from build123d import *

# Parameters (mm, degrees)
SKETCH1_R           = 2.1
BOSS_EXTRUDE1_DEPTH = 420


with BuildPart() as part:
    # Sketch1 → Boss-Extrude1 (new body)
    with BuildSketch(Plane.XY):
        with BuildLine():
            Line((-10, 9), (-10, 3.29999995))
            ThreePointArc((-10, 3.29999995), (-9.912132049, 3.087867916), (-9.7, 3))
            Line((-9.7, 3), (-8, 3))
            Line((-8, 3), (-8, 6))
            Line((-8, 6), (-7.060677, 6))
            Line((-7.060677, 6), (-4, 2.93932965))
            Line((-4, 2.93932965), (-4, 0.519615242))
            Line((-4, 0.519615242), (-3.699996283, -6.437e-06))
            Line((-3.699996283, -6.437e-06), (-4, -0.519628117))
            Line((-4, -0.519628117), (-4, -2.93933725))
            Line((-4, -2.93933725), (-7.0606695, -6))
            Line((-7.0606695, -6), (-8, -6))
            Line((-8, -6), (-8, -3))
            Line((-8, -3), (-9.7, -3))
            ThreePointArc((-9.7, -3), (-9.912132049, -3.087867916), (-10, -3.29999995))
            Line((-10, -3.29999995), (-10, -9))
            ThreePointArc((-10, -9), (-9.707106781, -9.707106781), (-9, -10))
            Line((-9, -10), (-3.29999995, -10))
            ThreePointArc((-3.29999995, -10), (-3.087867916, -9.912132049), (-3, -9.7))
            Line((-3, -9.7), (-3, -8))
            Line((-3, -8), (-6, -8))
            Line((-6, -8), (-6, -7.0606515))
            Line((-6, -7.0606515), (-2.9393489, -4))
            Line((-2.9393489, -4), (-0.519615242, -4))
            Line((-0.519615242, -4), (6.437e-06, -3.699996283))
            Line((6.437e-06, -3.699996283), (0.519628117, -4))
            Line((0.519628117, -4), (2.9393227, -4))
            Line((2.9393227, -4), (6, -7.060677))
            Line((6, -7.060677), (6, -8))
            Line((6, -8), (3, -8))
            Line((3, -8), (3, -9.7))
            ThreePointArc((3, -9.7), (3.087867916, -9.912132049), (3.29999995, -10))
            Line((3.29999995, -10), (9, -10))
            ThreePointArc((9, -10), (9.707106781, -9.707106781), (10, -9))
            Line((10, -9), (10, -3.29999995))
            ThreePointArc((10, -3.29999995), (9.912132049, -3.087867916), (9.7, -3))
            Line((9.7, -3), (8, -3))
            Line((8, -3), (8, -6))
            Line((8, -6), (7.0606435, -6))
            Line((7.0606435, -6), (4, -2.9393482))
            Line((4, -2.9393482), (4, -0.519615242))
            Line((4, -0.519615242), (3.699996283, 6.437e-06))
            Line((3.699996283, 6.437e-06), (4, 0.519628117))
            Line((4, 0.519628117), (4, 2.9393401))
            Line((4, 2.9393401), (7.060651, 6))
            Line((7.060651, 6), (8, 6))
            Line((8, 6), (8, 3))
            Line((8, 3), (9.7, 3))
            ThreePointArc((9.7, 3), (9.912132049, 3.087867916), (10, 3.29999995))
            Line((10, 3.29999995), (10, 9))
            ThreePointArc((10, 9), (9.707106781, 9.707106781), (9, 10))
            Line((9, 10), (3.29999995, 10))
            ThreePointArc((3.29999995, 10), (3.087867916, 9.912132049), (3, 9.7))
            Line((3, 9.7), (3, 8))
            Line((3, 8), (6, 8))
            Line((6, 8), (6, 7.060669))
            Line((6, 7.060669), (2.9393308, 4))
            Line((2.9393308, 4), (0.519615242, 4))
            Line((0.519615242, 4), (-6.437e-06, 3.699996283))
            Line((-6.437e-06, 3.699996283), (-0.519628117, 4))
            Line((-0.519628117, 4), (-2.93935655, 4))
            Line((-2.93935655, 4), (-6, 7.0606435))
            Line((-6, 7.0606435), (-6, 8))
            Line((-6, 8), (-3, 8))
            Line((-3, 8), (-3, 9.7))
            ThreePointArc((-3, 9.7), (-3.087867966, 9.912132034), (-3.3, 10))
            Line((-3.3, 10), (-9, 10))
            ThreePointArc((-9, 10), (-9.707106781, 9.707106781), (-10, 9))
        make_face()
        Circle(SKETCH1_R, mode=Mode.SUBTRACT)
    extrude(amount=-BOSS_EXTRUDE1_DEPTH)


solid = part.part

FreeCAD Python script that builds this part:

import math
import FreeCAD as App
import Part
import Sketcher
from FreeCAD import Vector
Q = App.Units.Quantity

doc = App.newDocument("Part")
body = doc.addObject("PartDesign::Body", "Body")

sketch1 = body.newObject("Sketcher::SketchObject", "Sketch")
sketch1.AttachmentSupport = (doc.getObject("XY_Plane"), [""])
sketch1.MapMode = "FlatFace"
sketch1.addGeometry(Part.LineSegment(Vector(-10, 9, 0), Vector(-10, 3.3, 0)), False)
sketch1.addGeometry(Part.ArcOfCircle(Part.Circle(Vector(-9.7, 3.3, 0), Vector(0, 0, 1), 0.3), math.radians(179.999989), math.radians(270.000021)), False)
sketch1.addGeometry(Part.LineSegment(Vector(-9.7, 3, 0), Vector(-8, 3, 0)), False)
sketch1.addGeometry(Part.LineSegment(Vector(-8, 3, 0), Vector(-8, 6, 0)), False)
sketch1.addGeometry(Part.LineSegment(Vector(-8, 6, 0), Vector(-7.060677, 6, 0)), False)
sketch1.addGeometry(Part.LineSegment(Vector(-7.060677, 6, 0), Vector(-4, 2.93933, 0)), False)
sketch1.addGeometry(Part.LineSegment(Vector(-4, 2.93933, 0), Vector(-4, 0.519615, 0)), False)
sketch1.addGeometry(Part.LineSegment(Vector(-4, 0.519615, 0), Vector(-3.699996, -0.000006, 0)), False)
sketch1.addGeometry(Part.LineSegment(Vector(-3.699996, -0.000006, 0), Vector(-4, -0.519628, 0)), False)
sketch1.addGeometry(Part.LineSegment(Vector(-4, -0.519628, 0), Vector(-4, -2.939337, 0)), False)
sketch1.addGeometry(Part.LineSegment(Vector(-4, -2.939337, 0), Vector(-7.06067, -6, 0)), False)
sketch1.addGeometry(Part.LineSegment(Vector(-7.06067, -6, 0), Vector(-8, -6, 0)), False)
sketch1.addGeometry(Part.LineSegment(Vector(-8, -6, 0), Vector(-8, -3, 0)), False)
sketch1.addGeometry(Part.LineSegment(Vector(-8, -3, 0), Vector(-9.7, -3, 0)), False)
sketch1.addGeometry(Part.ArcOfCircle(Part.Circle(Vector(-9.7, -3.3, 0), Vector(0, 0, 1), 0.3), math.radians(89.999979), math.radians(180.000011)), False)
sketch1.addGeometry(Part.LineSegment(Vector(-10, -3.3, 0), Vector(-10, -9, 0)), False)
sketch1.addGeometry(Part.ArcOfCircle(Part.Circle(Vector(-9, -9, 0), Vector(0, 0, 1), 1), math.radians(-180), math.radians(-90)), False)
sketch1.addGeometry(Part.LineSegment(Vector(-9, -10, 0), Vector(-3.3, -10, 0)), False)
sketch1.addGeometry(Part.ArcOfCircle(Part.Circle(Vector(-3.3, -9.7, 0), Vector(0, 0, 1), 0.3), math.radians(-90.000011), math.radians(0.000021)), False)
sketch1.addGeometry(Part.LineSegment(Vector(-3, -9.7, 0), Vector(-3, -8, 0)), False)
sketch1.addGeometry(Part.LineSegment(Vector(-3, -8, 0), Vector(-6, -8, 0)), False)
sketch1.addGeometry(Part.LineSegment(Vector(-6, -8, 0), Vector(-6, -7.060651, 0)), False)
sketch1.addGeometry(Part.LineSegment(Vector(-6, -7.060651, 0), Vector(-2.939349, -4, 0)), False)
sketch1.addGeometry(Part.LineSegment(Vector(-2.939349, -4, 0), Vector(-0.519615, -4, 0)), False)
sketch1.addGeometry(Part.LineSegment(Vector(-0.519615, -4, 0), Vector(0.000006, -3.699996, 0)), False)
sketch1.addGeometry(Part.LineSegment(Vector(0.000006, -3.699996, 0), Vector(0.519628, -4, 0)), False)
sketch1.addGeometry(Part.LineSegment(Vector(0.519628, -4, 0), Vector(2.939323, -4, 0)), False)
sketch1.addGeometry(Part.LineSegment(Vector(2.939323, -4, 0), Vector(6, -7.060677, 0)), False)
sketch1.addGeometry(Part.LineSegment(Vector(6, -7.060677, 0), Vector(6, -8, 0)), False)
sketch1.addGeometry(Part.LineSegment(Vector(6, -8, 0), Vector(3, -8, 0)), False)
sketch1.addGeometry(Part.LineSegment(Vector(3, -8, 0), Vector(3, -9.7, 0)), False)
sketch1.addGeometry(Part.ArcOfCircle(Part.Circle(Vector(3.3, -9.7, 0), Vector(0, 0, 1), 0.3), math.radians(179.999979), math.radians(270.000011)), False)
sketch1.addGeometry(Part.LineSegment(Vector(3.3, -10, 0), Vector(9, -10, 0)), False)
sketch1.addGeometry(Part.ArcOfCircle(Part.Circle(Vector(9, -9, 0), Vector(0, 0, 1), 1), math.radians(-90), math.radians(0)), False)
sketch1.addGeometry(Part.LineSegment(Vector(10, -9, 0), Vector(10, -3.3, 0)), False)
sketch1.addGeometry(Part.ArcOfCircle(Part.Circle(Vector(9.7, -3.3, 0), Vector(0, 0, 1), 0.3), math.radians(-0.000011), math.radians(90.000021)), False)
sketch1.addGeometry(Part.LineSegment(Vector(9.7, -3, 0), Vector(8, -3, 0)), False)
sketch1.addGeometry(Part.LineSegment(Vector(8, -3, 0), Vector(8, -6, 0)), False)
sketch1.addGeometry(Part.LineSegment(Vector(8, -6, 0), Vector(7.060644, -6, 0)), False)
sketch1.addGeometry(Part.LineSegment(Vector(7.060644, -6, 0), Vector(4, -2.939348, 0)), False)
sketch1.addGeometry(Part.LineSegment(Vector(4, -2.939348, 0), Vector(4, -0.519615, 0)), False)
sketch1.addGeometry(Part.LineSegment(Vector(4, -0.519615, 0), Vector(3.699996, 0.000006, 0)), False)
sketch1.addGeometry(Part.LineSegment(Vector(3.699996, 0.000006, 0), Vector(4, 0.519628, 0)), False)
sketch1.addGeometry(Part.LineSegment(Vector(4, 0.519628, 0), Vector(4, 2.93934, 0)), False)
sketch1.addGeometry(Part.LineSegment(Vector(4, 2.93934, 0), Vector(7.060651, 6, 0)), False)
sketch1.addGeometry(Part.LineSegment(Vector(7.060651, 6, 0), Vector(8, 6, 0)), False)
sketch1.addGeometry(Part.LineSegment(Vector(8, 6, 0), Vector(8, 3, 0)), False)
sketch1.addGeometry(Part.LineSegment(Vector(8, 3, 0), Vector(9.7, 3, 0)), False)
sketch1.addGeometry(Part.ArcOfCircle(Part.Circle(Vector(9.7, 3.3, 0), Vector(0, 0, 1), 0.3), math.radians(-90.000021), math.radians(0.000011)), False)
sketch1.addGeometry(Part.LineSegment(Vector(10, 3.3, 0), Vector(10, 9, 0)), False)
sketch1.addGeometry(Part.ArcOfCircle(Part.Circle(Vector(9, 9, 0), Vector(0, 0, 1), 1), math.radians(0), math.radians(90)), False)
sketch1.addGeometry(Part.LineSegment(Vector(9, 10, 0), Vector(3.3, 10, 0)), False)
sketch1.addGeometry(Part.ArcOfCircle(Part.Circle(Vector(3.3, 9.7, 0), Vector(0, 0, 1), 0.3), math.radians(89.999989), math.radians(180.000021)), False)
sketch1.addGeometry(Part.LineSegment(Vector(3, 9.7, 0), Vector(3, 8, 0)), False)
sketch1.addGeometry(Part.LineSegment(Vector(3, 8, 0), Vector(6, 8, 0)), False)
sketch1.addGeometry(Part.LineSegment(Vector(6, 8, 0), Vector(6, 7.060669, 0)), False)
sketch1.addGeometry(Part.LineSegment(Vector(6, 7.060669, 0), Vector(2.939331, 4, 0)), False)
sketch1.addGeometry(Part.LineSegment(Vector(2.939331, 4, 0), Vector(0.519615, 4, 0)), False)
sketch1.addGeometry(Part.LineSegment(Vector(0.519615, 4, 0), Vector(-0.000006, 3.699996, 0)), False)
sketch1.addGeometry(Part.LineSegment(Vector(-0.000006, 3.699996, 0), Vector(-0.519628, 4, 0)), False)
sketch1.addGeometry(Part.LineSegment(Vector(-0.519628, 4, 0), Vector(-2.939357, 4, 0)), False)
sketch1.addGeometry(Part.LineSegment(Vector(-2.939357, 4, 0), Vector(-6, 7.060644, 0)), False)
sketch1.addGeometry(Part.LineSegment(Vector(-6, 7.060644, 0), Vector(-6, 8, 0)), False)
sketch1.addGeometry(Part.LineSegment(Vector(-6, 8, 0), Vector(-3, 8, 0)), False)
sketch1.addGeometry(Part.LineSegment(Vector(-3, 8, 0), Vector(-3, 9.7, 0)), False)
sketch1.addGeometry(Part.ArcOfCircle(Part.Circle(Vector(-3.3, 9.7, 0), Vector(0, 0, 1), 0.3), math.radians(0), math.radians(90)), False)
sketch1.addGeometry(Part.LineSegment(Vector(-3.3, 10, 0), Vector(-9, 10, 0)), False)
sketch1.addGeometry(Part.ArcOfCircle(Part.Circle(Vector(-9, 9, 0), Vector(0, 0, 1), 1), math.radians(90), math.radians(180)), False)
sketch1.addGeometry(Part.Circle(Vector(0, 0, 0), Vector(0, 0, 1), 2.1), False)
sketch1.addConstraint(Sketcher.Constraint("Tangent", 0, 2, 1, 1))
sketch1.addConstraint(Sketcher.Constraint("Tangent", 1, 2, 2, 1))
sketch1.addConstraint(Sketcher.Constraint("Coincident", 2, 2, 3, 1))
sketch1.addConstraint(Sketcher.Constraint("Coincident", 3, 2, 4, 1))
sketch1.addConstraint(Sketcher.Constraint("Coincident", 4, 2, 5, 1))
sketch1.addConstraint(Sketcher.Constraint("Coincident", 5, 2, 6, 1))
sketch1.addConstraint(Sketcher.Constraint("Coincident", 6, 2, 7, 1))
sketch1.addConstraint(Sketcher.Constraint("Coincident", 7, 2, 8, 1))
sketch1.addConstraint(Sketcher.Constraint("Coincident", 8, 2, 9, 1))
sketch1.addConstraint(Sketcher.Constraint("Coincident", 9, 2, 10, 1))
sketch1.addConstraint(Sketcher.Constraint("Coincident", 10, 2, 11, 1))
sketch1.addConstraint(Sketcher.Constraint("Coincident", 11, 2, 12, 1))
sketch1.addConstraint(Sketcher.Constraint("Coincident", 12, 2, 13, 1))
sketch1.addConstraint(Sketcher.Constraint("Tangent", 13, 2, 14, 1))
sketch1.addConstraint(Sketcher.Constraint("Tangent", 14, 2, 15, 1))
sketch1.addConstraint(Sketcher.Constraint("Tangent", 15, 2, 16, 1))
sketch1.addConstraint(Sketcher.Constraint("Tangent", 16, 2, 17, 1))
sketch1.addConstraint(Sketcher.Constraint("Tangent", 17, 2, 18, 1))
sketch1.addConstraint(Sketcher.Constraint("Tangent", 18, 2, 19, 1))
sketch1.addConstraint(Sketcher.Constraint("Coincident", 19, 2, 20, 1))
sketch1.addConstraint(Sketcher.Constraint("Coincident", 20, 2, 21, 1))
sketch1.addConstraint(Sketcher.Constraint("Coincident", 21, 2, 22, 1))
sketch1.addConstraint(Sketcher.Constraint("Coincident", 22, 2, 23, 1))
sketch1.addConstraint(Sketcher.Constraint("Coincident", 23, 2, 24, 1))
sketch1.addConstraint(Sketcher.Constraint("Coincident", 24, 2, 25, 1))
sketch1.addConstraint(Sketcher.Constraint("Coincident", 25, 2, 26, 1))
sketch1.addConstraint(Sketcher.Constraint("Coincident", 26, 2, 27, 1))
sketch1.addConstraint(Sketcher.Constraint("Coincident", 27, 2, 28, 1))
sketch1.addConstraint(Sketcher.Constraint("Coincident", 28, 2, 29, 1))
sketch1.addConstraint(Sketcher.Constraint("Coincident", 29, 2, 30, 1))
sketch1.addConstraint(Sketcher.Constraint("Tangent", 30, 2, 31, 1))
sketch1.addConstraint(Sketcher.Constraint("Tangent", 31, 2, 32, 1))
sketch1.addConstraint(Sketcher.Constraint("Tangent", 32, 2, 33, 1))
sketch1.addConstraint(Sketcher.Constraint("Tangent", 33, 2, 34, 1))
sketch1.addConstraint(Sketcher.Constraint("Tangent", 34, 2, 35, 1))
sketch1.addConstraint(Sketcher.Constraint("Tangent", 35, 2, 36, 1))
sketch1.addConstraint(Sketcher.Constraint("Coincident", 36, 2, 37, 1))
sketch1.addConstraint(Sketcher.Constraint("Coincident", 37, 2, 38, 1))
sketch1.addConstraint(Sketcher.Constraint("Coincident", 38, 2, 39, 1))
sketch1.addConstraint(Sketcher.Constraint("Coincident", 39, 2, 40, 1))
sketch1.addConstraint(Sketcher.Constraint("Coincident", 40, 2, 41, 1))
sketch1.addConstraint(Sketcher.Constraint("Coincident", 41, 2, 42, 1))
sketch1.addConstraint(Sketcher.Constraint("Coincident", 42, 2, 43, 1))
sketch1.addConstraint(Sketcher.Constraint("Coincident", 43, 2, 44, 1))
sketch1.addConstraint(Sketcher.Constraint("Coincident", 44, 2, 45, 1))
sketch1.addConstraint(Sketcher.Constraint("Coincident", 45, 2, 46, 1))
sketch1.addConstraint(Sketcher.Constraint("Coincident", 46, 2, 47, 1))
sketch1.addConstraint(Sketcher.Constraint("Tangent", 47, 2, 48, 1))
sketch1.addConstraint(Sketcher.Constraint("Tangent", 48, 2, 49, 1))
sketch1.addConstraint(Sketcher.Constraint("Tangent", 49, 2, 50, 1))
sketch1.addConstraint(Sketcher.Constraint("Tangent", 50, 2, 51, 1))
sketch1.addConstraint(Sketcher.Constraint("Tangent", 51, 2, 52, 1))
sketch1.addConstraint(Sketcher.Constraint("Tangent", 52, 2, 53, 1))
sketch1.addConstraint(Sketcher.Constraint("Coincident", 53, 2, 54, 1))
sketch1.addConstraint(Sketcher.Constraint("Coincident", 54, 2, 55, 1))
sketch1.addConstraint(Sketcher.Constraint("Coincident", 55, 2, 56, 1))
sketch1.addConstraint(Sketcher.Constraint("Coincident", 56, 2, 57, 1))
sketch1.addConstraint(Sketcher.Constraint("Coincident", 57, 2, 58, 1))
sketch1.addConstraint(Sketcher.Constraint("Coincident", 58, 2, 59, 1))
sketch1.addConstraint(Sketcher.Constraint("Coincident", 59, 2, 60, 1))
sketch1.addConstraint(Sketcher.Constraint("Coincident", 60, 2, 61, 1))
sketch1.addConstraint(Sketcher.Constraint("Coincident", 61, 2, 62, 1))
sketch1.addConstraint(Sketcher.Constraint("Coincident", 62, 2, 63, 1))
sketch1.addConstraint(Sketcher.Constraint("Coincident", 63, 2, 64, 1))
sketch1.addConstraint(Sketcher.Constraint("Tangent", 64, 2, 65, 1))
sketch1.addConstraint(Sketcher.Constraint("Tangent", 65, 2, 66, 1))
sketch1.addConstraint(Sketcher.Constraint("Tangent", 66, 2, 67, 1))
sketch1.addConstraint(Sketcher.Constraint("Tangent", 67, 2, 0, 1))
sketch1.addConstraint(Sketcher.Constraint("Vertical", 0))
sketch1.addConstraint(Sketcher.Constraint("Horizontal", 2))
sketch1.addConstraint(Sketcher.Constraint("Vertical", 3))
sketch1.addConstraint(Sketcher.Constraint("Horizontal", 4))
sketch1.addConstraint(Sketcher.Constraint("Vertical", 6))
sketch1.addConstraint(Sketcher.Constraint("Vertical", 9))
sketch1.addConstraint(Sketcher.Constraint("Horizontal", 11))
sketch1.addConstraint(Sketcher.Constraint("Vertical", 12))
sketch1.addConstraint(Sketcher.Constraint("Horizontal", 13))
sketch1.addConstraint(Sketcher.Constraint("Vertical", 15))
sketch1.addConstraint(Sketcher.Constraint("Horizontal", 17))
sketch1.addConstraint(Sketcher.Constraint("Vertical", 19))
sketch1.addConstraint(Sketcher.Constraint("Horizontal", 20))
sketch1.addConstraint(Sketcher.Constraint("Vertical", 21))
sketch1.addConstraint(Sketcher.Constraint("Horizontal", 23))
sketch1.addConstraint(Sketcher.Constraint("Horizontal", 26))
sketch1.addConstraint(Sketcher.Constraint("Vertical", 28))
sketch1.addConstraint(Sketcher.Constraint("Horizontal", 29))
sketch1.addConstraint(Sketcher.Constraint("Vertical", 30))
sketch1.addConstraint(Sketcher.Constraint("Horizontal", 32))
sketch1.addConstraint(Sketcher.Constraint("Vertical", 34))
sketch1.addConstraint(Sketcher.Constraint("Horizontal", 36))
sketch1.addConstraint(Sketcher.Constraint("Vertical", 37))
sketch1.addConstraint(Sketcher.Constraint("Horizontal", 38))
sketch1.addConstraint(Sketcher.Constraint("Vertical", 40))
sketch1.addConstraint(Sketcher.Constraint("Vertical", 43))
sketch1.addConstraint(Sketcher.Constraint("Horizontal", 45))
sketch1.addConstraint(Sketcher.Constraint("Vertical", 46))
sketch1.addConstraint(Sketcher.Constraint("Horizontal", 47))
sketch1.addConstraint(Sketcher.Constraint("Vertical", 49))
sketch1.addConstraint(Sketcher.Constraint("Horizontal", 51))
sketch1.addConstraint(Sketcher.Constraint("Vertical", 53))
sketch1.addConstraint(Sketcher.Constraint("Horizontal", 54))
sketch1.addConstraint(Sketcher.Constraint("Vertical", 55))
sketch1.addConstraint(Sketcher.Constraint("Horizontal", 57))
sketch1.addConstraint(Sketcher.Constraint("Horizontal", 60))
sketch1.addConstraint(Sketcher.Constraint("Vertical", 62))
sketch1.addConstraint(Sketcher.Constraint("Horizontal", 63))
sketch1.addConstraint(Sketcher.Constraint("Vertical", 64))
sketch1.addConstraint(Sketcher.Constraint("Horizontal", 66))
sketch1.addConstraint(Sketcher.Constraint("Coincident", 68, 3, -1, 1))
sketch1.addConstraint(Sketcher.Constraint("Equal", 1, 14))
sketch1.addConstraint(Sketcher.Constraint("Equal", 14, 18))
sketch1.addConstraint(Sketcher.Constraint("Equal", 18, 31))
sketch1.addConstraint(Sketcher.Constraint("Equal", 16, 33))
sketch1.addConstraint(Sketcher.Constraint("Equal", 31, 35))
sketch1.addConstraint(Sketcher.Constraint("Equal", 35, 48))
sketch1.addConstraint(Sketcher.Constraint("Equal", 33, 50))
sketch1.addConstraint(Sketcher.Constraint("Equal", 48, 52))
sketch1.addConstraint(Sketcher.Constraint("Equal", 52, 65))
sketch1.addConstraint(Sketcher.Constraint("Equal", 50, 67))
sketch1.addConstraint(Sketcher.Constraint("Symmetric", 1, 3, 35, 3, -1, 1))
sketch1.addConstraint(Sketcher.Constraint("Symmetric", 14, 3, 48, 3, -1, 1))
sketch1.addConstraint(Sketcher.Constraint("Symmetric", 18, 3, 52, 3, -1, 1))
sketch1.addConstraint(Sketcher.Constraint("Symmetric", 31, 3, 65, 3, -1, 1))
sketch1.addConstraint(Sketcher.Constraint("Symmetric", 3, 2, 37, 2, -1, 1))
sketch1.addConstraint(Sketcher.Constraint("Symmetric", 6, 2, 40, 2, -1, 1))
sketch1.addConstraint(Sketcher.Constraint("Symmetric", 7, 2, 41, 2, -1, 1))
sketch1.addConstraint(Sketcher.Constraint("Symmetric", 8, 2, 42, 2, -1, 1))
sketch1.addConstraint(Sketcher.Constraint("Symmetric", 11, 2, 45, 2, -1, 1))
sketch1.addConstraint(Sketcher.Constraint("Symmetric", 20, 2, 54, 2, -1, 1))
sketch1.addConstraint(Sketcher.Constraint("Symmetric", 23, 2, 57, 2, -1, 1))
sketch1.addConstraint(Sketcher.Constraint("Symmetric", 24, 2, 58, 2, -1, 1))
sketch1.addConstraint(Sketcher.Constraint("Symmetric", 25, 2, 59, 2, -1, 1))
sketch1.addConstraint(Sketcher.Constraint("Symmetric", 28, 2, 62, 2, -1, 1))
sketch1.addConstraint(Sketcher.Constraint("Symmetric", 18, 3, 31, 3, -2))
sketch1.addConstraint(Sketcher.Constraint("Symmetric", 14, 3, 35, 3, -2))
sketch1.addConstraint(Sketcher.Constraint("Symmetric", 20, 2, 28, 2, -2))
sketch1.addConstraint(Sketcher.Constraint("Symmetric", 11, 2, 37, 2, -2))
sketch1.addConstraint(Sketcher.Constraint("Symmetric", 5, 2, 9, 2, -1))
sketch1.addConstraint(Sketcher.Constraint("Symmetric", 26, 2, 56, 2, -1))
sketch1.addConstraint(Sketcher.Constraint("Parallel", 10, 22))
sketch1.addConstraint(Sketcher.Constraint("Perpendicular", 7, 24))
sketch1.addConstraint(Sketcher.Constraint("Perpendicular", 8, 25))
sketch1.addConstraint(Sketcher.Constraint("Perpendicular", 22, 27))
sketch1.addConstraint(Sketcher.Constraint("Parallel", 27, 39))
sketch1.addConstraint(Sketcher.Constraint("Perpendicular", 27, 44))
sketch1.addConstraint(Sketcher.Constraint("Parallel", 44, 56))
sketch1.addConstraint(Sketcher.Constraint("Perpendicular", 56, 61))
sketch1.addConstraint(Sketcher.Constraint("Equal", 66, 0))
sketch1.addConstraint(Sketcher.Constraint("Equal", 63, 3))
sketch1.addConstraint(Sketcher.Constraint("Equal", 57, 6))
sketch1.addConstraint(Sketcher.Constraint("Equal", 47, 19))
sketch1.addConstraint(Sketcher.Constraint("Equal", 45, 21))
sketch1.addConstraint(Sketcher.Constraint("Equal", 4, 28))
sketch1.addConstraint(Sketcher.Constraint("Equal", 23, 40))
sketch1.addConstraint(Sketcher.Constraint("Equal", 11, 55))
sketch1.addConstraint(Sketcher.Constraint("Equal", 38, 62))
sketch1.addConstraint(Sketcher.Constraint("Equal", 7, 8))
sketch1.addConstraint(Sketcher.Constraint("Equal", 8, 24))
sketch1.addConstraint(Sketcher.Constraint("Radius", 16, 1.0))
sketch1.addConstraint(Sketcher.Constraint("Diameter", 68, 4.2))
sketch1.addConstraint(Sketcher.Constraint("Radius", 1, 0.3))
sketch1.addConstraint(Sketcher.Constraint("DistanceX", 20, 2, 20, 1, 3.0))
sketch1.addConstraint(Sketcher.Constraint("Angle", 7, Q("-60 deg")))
sketch1.addConstraint(Sketcher.Constraint("Angle", 22, Q("45.000004 deg")))
sketch1.addConstraint(Sketcher.Constraint("DistanceX", 2, 1, 2, 2, 1.7))
sketch1.addConstraint(Sketcher.Constraint("DistanceX", 17, 1, 17, 2, 5.7))
sketch1.addConstraint(Sketcher.Constraint("DistanceX", 16, 3, -1, 1, 9.0))
sketch1.addConstraint(Sketcher.Constraint("DistanceY", 16, 3, -1, 1, 9.0))
sketch1.addConstraint(Sketcher.Constraint("DistanceX", 5, 2, -1, 1, 4.0))
sketch1.addConstraint(Sketcher.Constraint("DistanceY", 22, 2, -1, 1, 4.0))
sketch1.addConstraint(Sketcher.Constraint("DistanceX", 11, 2, 11, 1, 0.93933))
sketch1.addConstraint(Sketcher.Constraint("DistanceX", 45, 1, 45, 2, 0.939349))
sketch1.addConstraint(Sketcher.Constraint("DistanceX", 60, 2, 60, 1, 2.419728))
sketch1.addConstraint(Sketcher.Constraint("DistanceX", 23, 1, 23, 2, 2.419734))
pad1 = body.newObject("PartDesign::Pad", "Pad")
pad1.Profile = sketch1
pad1.Length = 420
pad1.Reversed = True

doc.recompute()
